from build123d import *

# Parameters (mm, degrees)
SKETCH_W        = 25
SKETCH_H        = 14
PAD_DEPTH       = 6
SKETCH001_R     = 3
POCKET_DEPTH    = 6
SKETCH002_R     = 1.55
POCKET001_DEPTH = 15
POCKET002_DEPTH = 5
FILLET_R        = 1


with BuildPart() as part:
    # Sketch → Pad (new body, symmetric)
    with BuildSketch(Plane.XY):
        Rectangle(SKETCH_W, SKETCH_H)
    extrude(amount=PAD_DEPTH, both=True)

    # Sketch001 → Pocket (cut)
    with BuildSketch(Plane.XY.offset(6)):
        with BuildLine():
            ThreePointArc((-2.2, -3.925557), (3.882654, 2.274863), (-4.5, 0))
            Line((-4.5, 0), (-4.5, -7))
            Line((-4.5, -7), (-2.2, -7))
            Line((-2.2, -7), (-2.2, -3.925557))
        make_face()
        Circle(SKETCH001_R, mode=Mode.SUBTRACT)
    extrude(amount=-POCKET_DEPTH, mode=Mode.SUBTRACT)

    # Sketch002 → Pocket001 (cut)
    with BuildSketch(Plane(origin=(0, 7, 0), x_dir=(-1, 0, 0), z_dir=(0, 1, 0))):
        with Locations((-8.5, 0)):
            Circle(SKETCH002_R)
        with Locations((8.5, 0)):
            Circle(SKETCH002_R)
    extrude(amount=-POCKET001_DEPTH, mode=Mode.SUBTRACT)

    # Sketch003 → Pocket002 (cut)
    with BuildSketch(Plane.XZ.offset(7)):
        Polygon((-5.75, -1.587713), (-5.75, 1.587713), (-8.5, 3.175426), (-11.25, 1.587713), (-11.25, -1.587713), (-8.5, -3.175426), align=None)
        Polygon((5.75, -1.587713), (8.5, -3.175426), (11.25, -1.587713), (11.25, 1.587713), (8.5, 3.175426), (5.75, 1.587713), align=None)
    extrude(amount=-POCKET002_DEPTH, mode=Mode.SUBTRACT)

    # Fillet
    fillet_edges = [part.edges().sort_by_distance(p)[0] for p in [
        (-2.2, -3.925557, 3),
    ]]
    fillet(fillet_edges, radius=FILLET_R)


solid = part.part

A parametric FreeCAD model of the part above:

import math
import FreeCAD as App
import Part
import Sketcher
Q = App.Units.Quantity


def edges_at(feature, points):
    """Names of the edges that pass closest to the given points."""
    edges = feature.Shape.Edges
    near = lambda p: min(range(len(edges)), key=lambda i: edges[i].distToShape(Part.Vertex(*p))[0])
    return sorted({f"Edge{near(p) + 1}" for p in points})

doc = App.newDocument("Part")
params = doc.addObject("Spreadsheet::Sheet", "Params")
for row, (alias, value) in enumerate([
    ("sketch1_width", "25 mm"),
    ("sketch1_height", "14 mm"),
    ("pad1_length", "12 mm"),
    ("sketch2_diameter", "6 mm"),
    ("sketch2_radius", "4.5 mm"),
    ("sketch2_height", "7 mm"),
    ("sketch2_width", "2.3 mm"),
    ("pocket1_length", "6 mm"),
    ("sketch3_diameter", "3.1 mm"),
    ("pocket2_length", "15 mm"),
    ("pocket3_length", "5 mm"),
    ("fillet_radius", "1 mm"),
], start=1):
    params.set(f"A{row}", alias)
    params.set(f"B{row}", "=" + value)
    params.setAlias(f"B{row}", alias)

body = doc.addObject("PartDesign::Body", "Body")

# Sketch on XY plane
sketch1 = body.newObject("Sketcher::SketchObject", "Sketch")
sketch1.AttachmentSupport = (doc.getObject("XY_Plane"), [""])
sketch1.MapMode = "FlatFace"
sketch1.addGeometry(Part.LineSegment(App.Vector(-12, 7, 0), App.Vector(-12, -7, 0)), False)
sketch1.addGeometry(Part.LineSegment(App.Vector(-12, -7, 0), App.Vector(12, -7, 0)), False)
sketch1.addGeometry(Part.LineSegment(App.Vector(12, -7, 0), App.Vector(12, 7, 0)), False)
sketch1.addGeometry(Part.LineSegment(App.Vector(12, 7, 0), App.Vector(-12, 7, 0)), False)
sketch1.addConstraint(Sketcher.Constraint("Coincident", 0, 2, 1, 1))
sketch1.addConstraint(Sketcher.Constraint("Coincident", 1, 2, 2, 1))
sketch1.addConstraint(Sketcher.Constraint("Coincident", 2, 2, 3, 1))
sketch1.addConstraint(Sketcher.Constraint("Coincident", 3, 2, 0, 1))
sketch1.addConstraint(Sketcher.Constraint("Vertical", 0))
sketch1.addConstraint(Sketcher.Constraint("Horizontal", 1))
sketch1.addConstraint(Sketcher.Constraint("Vertical", 2))
sketch1.addConstraint(Sketcher.Constraint("Horizontal", 3))
sketch1.addConstraint(Sketcher.Constraint("Symmetric", 0, 2, 2, 2, -1, 1))
sketch1.addConstraint(Sketcher.Constraint("DistanceX", 1, 1, 1, 2, Q("25 mm")))
sketch1.addConstraint(Sketcher.Constraint("DistanceY", 0, 2, 0, 1, Q("14 mm")))
sketch1.setExpression("Constraints[9]", "Params.sketch1_width")
sketch1.setExpression("Constraints[10]", "Params.sketch1_height")
pad1 = body.newObject("PartDesign::Pad", "Pad")
pad1.Profile = sketch1
pad1.setExpression("Length", "Params.pad1_length")
pad1.Midplane = True

# Sketch on XY plane
sketch2 = body.newObject("Sketcher::SketchObject", "Sketch001")
sketch2.AttachmentSupport = (doc.getObject("XY_Plane"), [""])
sketch2.MapMode = "FlatFace"
sketch2.AttachmentOffset = App.Placement(App.Vector(0, 0, 6), App.Rotation())
sketch2.addGeometry(Part.ArcOfCircle(Part.Circle(App.Vector(0, 0, 0), App.Vector(0, 0, 1), 4.5), math.radians(-119), math.radians(180)), False)
sketch2.addGeometry(Part.LineSegment(App.Vector(-4.5, 0, 0), App.Vector(-4.5, -7, 0)), False)
sketch2.addGeometry(Part.LineSegment(App.Vector(-4.5, -7, 0), App.Vector(-2.2, -7, 0)), False)
sketch2.addGeometry(Part.LineSegment(App.Vector(-2.2, -7, 0), App.Vector(-2.2, -3.9, 0)), False)
sketch2.addGeometry(Part.Circle(App.Vector(0, 0, 0), App.Vector(0, 0, 1), 3), False)
sketch2.addConstraint(Sketcher.Constraint("Tangent", 0, 2, 1, 1))
sketch2.addConstraint(Sketcher.Constraint("Coincident", 1, 2, 2, 1))
sketch2.addConstraint(Sketcher.Constraint("Coincident", 2, 2, 3, 1))
sketch2.addConstraint(Sketcher.Constraint("Coincident", 3, 2, 0, 1))
sketch2.addConstraint(Sketcher.Constraint("Vertical", 1))
sketch2.addConstraint(Sketcher.Constraint("Horizontal", 2))
sketch2.addConstraint(Sketcher.Constraint("Vertical", 3))
sketch2.addConstraint(Sketcher.Constraint("Coincident", 0, 3, -1, 1))
sketch2.addConstraint(Sketcher.Constraint("Coincident", 4, 3, -1, 1))
sketch2.addConstraint(Sketcher.Constraint("Diameter", 4, Q("6 mm")))
sketch2.addConstraint(Sketcher.Constraint("Radius", 0, Q("4.5 mm")))
sketch2.addConstraint(Sketcher.Constraint("DistanceY", 1, 2, 1, 1, Q("7 mm")))
sketch2.addConstraint(Sketcher.Constraint("DistanceX", 2, 1, 2, 2, Q("2.3 mm")))
sketch2.setExpression("Constraints[9]", "Params.sketch2_diameter")
sketch2.setExpression("Constraints[10]", "Params.sketch2_radius")
sketch2.setExpression("Constraints[11]", "Params.sketch2_height")
sketch2.setExpression("Constraints[12]", "Params.sketch2_width")
pocket1 = body.newObject("PartDesign::Pocket", "Pocket")
pocket1.Profile = sketch2
pocket1.setExpression("Length", "Params.pocket1_length")

# Sketch on XZ plane
sketch3 = body.newObject("Sketcher::SketchObject", "Sketch002")
sketch3.AttachmentSupport = (doc.getObject("XZ_Plane"), [""])
sketch3.MapMode = "FlatFace"
sketch3.AttachmentOffset = App.Placement(App.Vector(0, 0, -7), App.Rotation())
sketch3.addGeometry(Part.Circle(App.Vector(8.5, 0, 0), App.Vector(0, 0, 1), 1.6), False)
sketch3.addGeometry(Part.Circle(App.Vector(-8.5, 0, 0), App.Vector(0, 0, 1), 1.6), False)
sketch3.addConstraint(Sketcher.Constraint("Equal", 0, 1))
sketch3.addConstraint(Sketcher.Constraint("Symmetric", 0, 3, 1, 3, -1, 1))
sketch3.addConstraint(Sketcher.Constraint("PointOnObject", 0, 3, -1))
sketch3.addConstraint(Sketcher.Constraint("Diameter", 0, Q("3.1 mm")))
sketch3.addConstraint(Sketcher.Constraint("DistanceX", 1, 3, 0, 3, Q("17 mm")))
sketch3.setExpression("Constraints[3]", "Params.sketch3_diameter")
pocket2 = body.newObject("PartDesign::Pocket", "Pocket001")
pocket2.Profile = sketch3
pocket2.setExpression("Length", "Params.pocket2_length")
pocket2.Reversed = True

# Sketch on XZ plane
sketch4 = body.newObject("Sketcher::SketchObject", "Sketch003")
sketch4.AttachmentSupport = (doc.getObject("XZ_Plane"), [""])
sketch4.MapMode = "FlatFace"
sketch4.AttachmentOffset = App.Placement(App.Vector(0, 0, 7), App.Rotation())
sketch4.addGeometry(Part.LineSegment(App.Vector(-5.8, -1.6, 0), App.Vector(-5.8, 1.6, 0)), False)
sketch4.addGeometry(Part.LineSegment(App.Vector(-5.8, 1.6, 0), App.Vector(-8.5, 3.2, 0)), False)
sketch4.addGeometry(Part.LineSegment(App.Vector(-8.5, 3.2, 0), App.Vector(-11.2, 1.6, 0)), False)
sketch4.addGeometry(Part.LineSegment(App.Vector(-11.2, 1.6, 0), App.Vector(-11.2, -1.6, 0)), False)
sketch4.addGeometry(Part.LineSegment(App.Vector(-11.2, -1.6, 0), App.Vector(-8.5, -3.2, 0)), False)
sketch4.addGeometry(Part.LineSegment(App.Vector(-8.5, -3.2, 0), App.Vector(-5.8, -1.6, 0)), False)
sketch4.addGeometry(Part.LineSegment(App.Vector(5.8, -1.6, 0), App.Vector(8.5, -3.2, 0)), False)
sketch4.addGeometry(Part.LineSegment(App.Vector(8.5, -3.2, 0), App.Vector(11.2, -1.6, 0)), False)
sketch4.addGeometry(Part.LineSegment(App.Vector(11.2, -1.6, 0), App.Vector(11.2, 1.6, 0)), False)
sketch4.addGeometry(Part.LineSegment(App.Vector(11.2, 1.6, 0), App.Vector(8.5, 3.2, 0)), False)
sketch4.addGeometry(Part.LineSegment(App.Vector(8.5, 3.2, 0), App.Vector(5.8, 1.6, 0)), False)
sketch4.addGeometry(Part.LineSegment(App.Vector(5.8, 1.6, 0), App.Vector(5.8, -1.6, 0)), False)
sketch4.addConstraint(Sketcher.Constraint("Coincident", 0, 2, 1, 1))
sketch4.addConstraint(Sketcher.Constraint("Coincident", 1, 2, 2, 1))
sketch4.addConstraint(Sketcher.Constraint("Coincident", 2, 2, 3, 1))
sketch4.addConstraint(Sketcher.Constraint("Coincident", 3, 2, 4, 1))
sketch4.addConstraint(Sketcher.Constraint("Coincident", 4, 2, 5, 1))
sketch4.addConstraint(Sketcher.Constraint("Coincident", 5, 2, 0, 1))
sketch4.addConstraint(Sketcher.Constraint("Coincident", 6, 2, 7, 1))
sketch4.addConstraint(Sketcher.Constraint("Coincident", 7, 2, 8, 1))
sketch4.addConstraint(Sketcher.Constraint("Coincident", 8, 2, 9, 1))
sketch4.addConstraint(Sketcher.Constraint("Coincident", 9, 2, 10, 1))
sketch4.addConstraint(Sketcher.Constraint("Coincident", 10, 2, 11, 1))
sketch4.addConstraint(Sketcher.Constraint("Coincident", 11, 2, 6, 1))
sketch4.addConstraint(Sketcher.Constraint("Vertical", 0))
sketch4.addConstraint(Sketcher.Constraint("Vertical", 3))
sketch4.addConstraint(Sketcher.Constraint("Vertical", 8))
sketch4.addConstraint(Sketcher.Constraint("Vertical", 11))
sketch4.addConstraint(Sketcher.Constraint("Symmetric", 1, 2, 6, 2, -1, 1))
sketch4.addConstraint(Sketcher.Constraint("Symmetric", 2, 2, 7, 2, -1, 1))
sketch4.addConstraint(Sketcher.Constraint("Symmetric", 4, 2, 9, 2, -1, 1))
sketch4.addConstraint(Sketcher.Constraint("Symmetric", 5, 2, 10, 2, -1, 1))
sketch4.addConstraint(Sketcher.Constraint("Symmetric", 4, 2, 6, 2, -2))
sketch4.addConstraint(Sketcher.Constraint("Parallel", 1, 4))
sketch4.addConstraint(Sketcher.Constraint("Parallel", 2, 5))
sketch4.addConstraint(Sketcher.Constraint("Parallel", 4, 6))
sketch4.addConstraint(Sketcher.Constraint("Parallel", 6, 9))
sketch4.addConstraint(Sketcher.Constraint("Horizontal", 0, 2, 2, 2))
sketch4.addConstraint(Sketcher.Constraint("Horizontal", 3, 2, 5, 2))
sketch4.addConstraint(Sketcher.Constraint("Angle", 1, Q("150.000004 deg")))
sketch4.addConstraint(Sketcher.Constraint("DistanceX", 4, 2, 6, 2, Q("17 mm")))
sketch4.addConstraint(Sketcher.Constraint("DistanceX", 2, 2, 0, 2, Q("5.5 mm")))
sketch4.addConstraint(Sketcher.Constraint("DistanceY", 0, 1, 0, 2, Q("3.175426 mm")))
pocket3 = body.newObject("PartDesign::Pocket", "Pocket002")
pocket3.Profile = sketch4
pocket3.setExpression("Length", "Params.pocket3_length")
doc.recompute()

fillet = body.newObject("PartDesign::Fillet", "Fillet")
fillet.Base = (pocket3, edges_at(pocket3, [(-2.2, -3.926, 3)]))
fillet.setExpression("Radius", "Params.fillet_radius")

doc.recompute()
